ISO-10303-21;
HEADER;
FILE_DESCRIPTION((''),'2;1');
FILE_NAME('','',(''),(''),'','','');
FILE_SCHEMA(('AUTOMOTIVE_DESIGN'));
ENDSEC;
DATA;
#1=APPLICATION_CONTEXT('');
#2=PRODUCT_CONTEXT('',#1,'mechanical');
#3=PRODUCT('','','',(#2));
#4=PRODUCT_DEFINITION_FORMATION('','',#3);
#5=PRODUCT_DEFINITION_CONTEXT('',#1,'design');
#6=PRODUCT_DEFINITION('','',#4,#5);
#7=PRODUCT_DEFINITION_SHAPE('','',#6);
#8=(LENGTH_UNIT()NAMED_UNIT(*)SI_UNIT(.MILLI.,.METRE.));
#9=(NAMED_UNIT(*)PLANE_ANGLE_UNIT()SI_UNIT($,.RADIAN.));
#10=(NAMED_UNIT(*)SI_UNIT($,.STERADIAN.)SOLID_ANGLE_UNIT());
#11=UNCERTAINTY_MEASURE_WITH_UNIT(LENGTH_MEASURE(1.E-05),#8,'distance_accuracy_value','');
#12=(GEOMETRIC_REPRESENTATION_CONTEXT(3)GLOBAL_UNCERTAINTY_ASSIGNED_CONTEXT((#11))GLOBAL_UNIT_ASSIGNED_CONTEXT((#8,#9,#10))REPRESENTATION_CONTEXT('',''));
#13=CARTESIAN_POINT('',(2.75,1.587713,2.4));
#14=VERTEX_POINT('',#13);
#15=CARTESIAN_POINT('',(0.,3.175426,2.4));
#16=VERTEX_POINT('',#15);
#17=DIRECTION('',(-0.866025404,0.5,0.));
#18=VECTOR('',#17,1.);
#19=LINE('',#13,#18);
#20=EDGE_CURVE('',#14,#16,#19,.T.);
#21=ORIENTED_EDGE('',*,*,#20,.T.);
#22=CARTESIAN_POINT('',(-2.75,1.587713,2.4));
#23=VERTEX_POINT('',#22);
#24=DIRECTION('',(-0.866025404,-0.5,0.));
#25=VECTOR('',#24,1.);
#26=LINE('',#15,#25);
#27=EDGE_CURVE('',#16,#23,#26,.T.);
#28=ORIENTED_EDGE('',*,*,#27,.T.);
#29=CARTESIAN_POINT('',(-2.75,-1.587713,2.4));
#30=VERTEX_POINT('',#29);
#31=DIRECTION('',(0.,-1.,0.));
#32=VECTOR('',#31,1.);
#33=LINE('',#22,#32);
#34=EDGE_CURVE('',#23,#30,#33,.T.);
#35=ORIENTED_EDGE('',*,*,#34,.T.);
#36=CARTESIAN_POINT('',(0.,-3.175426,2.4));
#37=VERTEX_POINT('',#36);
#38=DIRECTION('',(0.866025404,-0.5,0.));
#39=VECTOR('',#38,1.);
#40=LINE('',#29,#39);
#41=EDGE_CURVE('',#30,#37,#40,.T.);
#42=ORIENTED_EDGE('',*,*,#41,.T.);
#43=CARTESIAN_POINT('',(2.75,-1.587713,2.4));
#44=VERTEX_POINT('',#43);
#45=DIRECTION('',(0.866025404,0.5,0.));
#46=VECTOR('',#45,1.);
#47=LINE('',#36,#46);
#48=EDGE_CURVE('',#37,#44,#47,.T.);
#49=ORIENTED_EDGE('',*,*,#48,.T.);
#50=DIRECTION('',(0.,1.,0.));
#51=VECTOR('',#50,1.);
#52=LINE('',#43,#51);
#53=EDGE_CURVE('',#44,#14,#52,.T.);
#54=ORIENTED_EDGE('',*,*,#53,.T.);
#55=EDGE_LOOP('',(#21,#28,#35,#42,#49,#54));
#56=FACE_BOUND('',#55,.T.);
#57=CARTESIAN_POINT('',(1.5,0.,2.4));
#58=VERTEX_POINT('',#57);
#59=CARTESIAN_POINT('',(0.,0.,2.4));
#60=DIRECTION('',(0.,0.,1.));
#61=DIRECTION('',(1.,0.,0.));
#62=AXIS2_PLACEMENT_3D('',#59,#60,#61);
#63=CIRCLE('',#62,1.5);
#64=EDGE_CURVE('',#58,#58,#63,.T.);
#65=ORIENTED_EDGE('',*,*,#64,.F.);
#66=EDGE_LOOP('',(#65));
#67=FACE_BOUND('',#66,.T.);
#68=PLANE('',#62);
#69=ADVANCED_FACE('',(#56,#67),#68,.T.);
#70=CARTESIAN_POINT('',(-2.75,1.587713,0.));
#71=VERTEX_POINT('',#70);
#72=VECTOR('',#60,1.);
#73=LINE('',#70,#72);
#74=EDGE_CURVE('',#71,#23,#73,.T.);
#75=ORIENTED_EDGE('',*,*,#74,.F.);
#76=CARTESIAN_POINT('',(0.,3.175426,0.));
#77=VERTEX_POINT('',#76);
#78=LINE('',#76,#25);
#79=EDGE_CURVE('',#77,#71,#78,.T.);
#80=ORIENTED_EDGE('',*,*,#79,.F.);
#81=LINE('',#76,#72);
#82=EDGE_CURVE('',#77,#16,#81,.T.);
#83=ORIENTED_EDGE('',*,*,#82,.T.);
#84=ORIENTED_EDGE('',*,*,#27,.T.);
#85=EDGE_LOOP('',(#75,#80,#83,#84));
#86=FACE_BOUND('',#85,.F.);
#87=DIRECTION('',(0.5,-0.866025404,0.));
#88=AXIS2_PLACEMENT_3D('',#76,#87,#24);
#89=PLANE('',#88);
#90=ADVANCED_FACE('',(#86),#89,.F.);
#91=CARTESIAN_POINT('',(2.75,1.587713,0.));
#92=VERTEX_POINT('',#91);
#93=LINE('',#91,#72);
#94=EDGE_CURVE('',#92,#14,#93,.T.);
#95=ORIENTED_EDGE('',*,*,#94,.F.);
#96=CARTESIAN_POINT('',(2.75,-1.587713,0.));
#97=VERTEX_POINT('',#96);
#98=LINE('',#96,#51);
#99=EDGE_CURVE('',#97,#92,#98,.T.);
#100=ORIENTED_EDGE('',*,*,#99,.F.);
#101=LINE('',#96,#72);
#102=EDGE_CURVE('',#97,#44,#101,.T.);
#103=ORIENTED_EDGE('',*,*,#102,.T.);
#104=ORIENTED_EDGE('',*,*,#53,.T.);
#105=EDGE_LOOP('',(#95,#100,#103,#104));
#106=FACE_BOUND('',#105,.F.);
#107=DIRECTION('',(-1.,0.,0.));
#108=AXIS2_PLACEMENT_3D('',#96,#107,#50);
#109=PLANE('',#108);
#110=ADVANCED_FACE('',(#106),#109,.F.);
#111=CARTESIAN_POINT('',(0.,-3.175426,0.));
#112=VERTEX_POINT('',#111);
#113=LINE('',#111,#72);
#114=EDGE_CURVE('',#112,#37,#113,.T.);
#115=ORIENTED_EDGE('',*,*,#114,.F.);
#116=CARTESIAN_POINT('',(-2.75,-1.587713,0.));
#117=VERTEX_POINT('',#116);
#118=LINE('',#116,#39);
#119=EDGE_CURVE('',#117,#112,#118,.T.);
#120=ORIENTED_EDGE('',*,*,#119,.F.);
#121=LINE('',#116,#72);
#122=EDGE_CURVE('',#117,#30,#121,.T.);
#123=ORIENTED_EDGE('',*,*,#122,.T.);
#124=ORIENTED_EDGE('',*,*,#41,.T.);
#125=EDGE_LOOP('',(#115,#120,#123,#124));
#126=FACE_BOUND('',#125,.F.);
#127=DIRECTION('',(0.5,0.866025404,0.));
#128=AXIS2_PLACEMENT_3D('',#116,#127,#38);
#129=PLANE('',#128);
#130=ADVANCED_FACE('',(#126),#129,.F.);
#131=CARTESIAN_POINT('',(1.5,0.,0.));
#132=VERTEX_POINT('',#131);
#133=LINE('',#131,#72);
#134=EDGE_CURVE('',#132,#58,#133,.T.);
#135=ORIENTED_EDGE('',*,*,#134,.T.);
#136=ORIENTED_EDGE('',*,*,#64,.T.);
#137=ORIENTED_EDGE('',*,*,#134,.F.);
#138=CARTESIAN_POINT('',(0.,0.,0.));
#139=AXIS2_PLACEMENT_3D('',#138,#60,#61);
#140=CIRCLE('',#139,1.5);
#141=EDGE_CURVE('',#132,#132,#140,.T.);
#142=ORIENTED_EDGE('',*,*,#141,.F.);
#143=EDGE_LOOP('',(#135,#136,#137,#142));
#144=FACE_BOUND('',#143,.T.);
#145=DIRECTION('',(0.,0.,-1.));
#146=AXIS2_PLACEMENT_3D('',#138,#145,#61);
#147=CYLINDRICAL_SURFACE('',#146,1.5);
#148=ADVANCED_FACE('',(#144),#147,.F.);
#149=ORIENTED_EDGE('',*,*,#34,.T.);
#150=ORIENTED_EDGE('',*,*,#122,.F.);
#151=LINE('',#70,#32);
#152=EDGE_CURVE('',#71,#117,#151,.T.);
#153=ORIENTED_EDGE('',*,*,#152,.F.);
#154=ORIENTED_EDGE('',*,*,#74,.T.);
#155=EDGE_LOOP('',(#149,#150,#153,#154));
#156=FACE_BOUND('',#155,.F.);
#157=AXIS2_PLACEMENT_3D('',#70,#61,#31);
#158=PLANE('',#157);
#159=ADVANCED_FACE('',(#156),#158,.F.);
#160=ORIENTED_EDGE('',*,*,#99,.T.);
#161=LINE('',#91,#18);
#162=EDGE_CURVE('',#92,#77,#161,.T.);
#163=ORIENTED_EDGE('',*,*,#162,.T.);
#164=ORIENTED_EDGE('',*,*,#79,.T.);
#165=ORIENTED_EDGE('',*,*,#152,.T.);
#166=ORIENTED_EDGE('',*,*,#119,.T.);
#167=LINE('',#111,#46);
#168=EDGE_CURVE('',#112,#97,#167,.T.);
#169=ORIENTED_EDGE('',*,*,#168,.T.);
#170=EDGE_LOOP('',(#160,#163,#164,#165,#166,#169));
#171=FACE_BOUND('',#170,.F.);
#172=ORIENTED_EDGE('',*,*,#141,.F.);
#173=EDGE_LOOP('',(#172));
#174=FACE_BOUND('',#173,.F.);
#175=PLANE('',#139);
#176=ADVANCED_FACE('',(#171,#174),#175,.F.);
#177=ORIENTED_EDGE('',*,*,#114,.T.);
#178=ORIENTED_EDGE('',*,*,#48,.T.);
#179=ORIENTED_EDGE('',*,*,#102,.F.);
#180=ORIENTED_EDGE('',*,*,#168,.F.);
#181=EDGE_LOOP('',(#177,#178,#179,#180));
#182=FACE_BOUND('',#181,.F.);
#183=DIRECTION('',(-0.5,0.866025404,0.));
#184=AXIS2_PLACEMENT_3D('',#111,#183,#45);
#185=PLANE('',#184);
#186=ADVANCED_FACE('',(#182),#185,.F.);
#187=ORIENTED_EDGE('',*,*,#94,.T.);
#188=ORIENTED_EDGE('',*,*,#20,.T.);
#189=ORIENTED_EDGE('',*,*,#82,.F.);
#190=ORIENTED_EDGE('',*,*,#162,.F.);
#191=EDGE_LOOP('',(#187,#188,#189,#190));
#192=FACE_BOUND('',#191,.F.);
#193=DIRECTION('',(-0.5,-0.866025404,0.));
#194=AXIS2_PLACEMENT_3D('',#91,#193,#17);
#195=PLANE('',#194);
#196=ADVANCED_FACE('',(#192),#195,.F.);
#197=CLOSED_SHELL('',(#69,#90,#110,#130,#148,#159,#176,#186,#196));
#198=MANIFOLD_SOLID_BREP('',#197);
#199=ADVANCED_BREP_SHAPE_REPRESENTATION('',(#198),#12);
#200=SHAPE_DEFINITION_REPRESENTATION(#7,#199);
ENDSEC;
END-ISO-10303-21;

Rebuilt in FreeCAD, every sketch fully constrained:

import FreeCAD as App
import Part
import Sketcher

V = App.Vector
Q = App.Units.Quantity

doc = App.newDocument("Part")
params = doc.addObject("Spreadsheet::Sheet", "Params")
for row, (alias, value) in enumerate([
    ("sketch1_diameter", "3 mm"),
    ("pad1_length", "2.4 mm"),
], start=1):
    params.set(f"A{row}", alias)
    params.set(f"B{row}", "=" + value)
    params.setAlias(f"B{row}", alias)

body = doc.addObject("PartDesign::Body", "Body")

# Sketch on XY plane
sketch1 = body.newObject("Sketcher::SketchObject", "Sketch")
sketch1.AttachmentSupport = (doc.getObject("XY_Plane"), [""])
sketch1.MapMode = "FlatFace"
sketch1.addGeometry([
    Part.LineSegment(V(0, -3.175426, 0), V(2.75, -1.587713, 0)),  # 0
    Part.LineSegment(V(2.75, -1.587713, 0), V(2.75, 1.587713, 0)),  # 1
    Part.LineSegment(V(2.75, 1.587713, 0), V(0, 3.175426, 0)),  # 2
    Part.LineSegment(V(0, 3.175426, 0), V(-2.75, 1.587713, 0)),  # 3
    Part.LineSegment(V(-2.75, 1.587713, 0), V(-2.75, -1.587713, 0)),  # 4
    Part.LineSegment(V(-2.75, -1.587713, 0), V(0, -3.175426, 0)),  # 5
    Part.Circle(V(0, 0, 0), V(0, 0, 1), 1.5),  # 6
], False)
sketch1.addConstraint([
    Sketcher.Constraint("Coincident", 0, 2, 1, 1),
    Sketcher.Constraint("Coincident", 1, 2, 2, 1),
    Sketcher.Constraint("Coincident", 2, 2, 3, 1),
    Sketcher.Constraint("Coincident", 3, 2, 4, 1),
    Sketcher.Constraint("Coincident", 4, 2, 5, 1),
    Sketcher.Constraint("Coincident", 5, 2, 0, 1),
    Sketcher.Constraint("Vertical", 1),
    Sketcher.Constraint("Vertical", 4),
    Sketcher.Constraint("Coincident", 6, 3, -1, 1),
    Sketcher.Constraint("Symmetric", 0, 2, 3, 2, -1, 1),
    Sketcher.Constraint("Symmetric", 2, 2, 5, 2, -1, 1),
    Sketcher.Constraint("PointOnObject", 2, 2, -2),
    Sketcher.Constraint("Parallel", 2, 5),
    Sketcher.Constraint("Horizontal", 1, 2, 3, 2),
    Sketcher.Constraint("Diameter", 6, 3.0),
    Sketcher.Constraint("Angle", 0, Q("30 deg")),
    Sketcher.Constraint("DistanceX", 3, 2, 1, 2, 5.5),
    Sketcher.Constraint("DistanceY", 1, 1, 1, 2, 3.175426),
])
sketch1.setExpression("Constraints[14]", "Params.sketch1_diameter")
pad1 = body.newObject("PartDesign::Pad", "Pad")
pad1.Profile = sketch1
pad1.setExpression("Length", "Params.pad1_length")

doc.recompute()
